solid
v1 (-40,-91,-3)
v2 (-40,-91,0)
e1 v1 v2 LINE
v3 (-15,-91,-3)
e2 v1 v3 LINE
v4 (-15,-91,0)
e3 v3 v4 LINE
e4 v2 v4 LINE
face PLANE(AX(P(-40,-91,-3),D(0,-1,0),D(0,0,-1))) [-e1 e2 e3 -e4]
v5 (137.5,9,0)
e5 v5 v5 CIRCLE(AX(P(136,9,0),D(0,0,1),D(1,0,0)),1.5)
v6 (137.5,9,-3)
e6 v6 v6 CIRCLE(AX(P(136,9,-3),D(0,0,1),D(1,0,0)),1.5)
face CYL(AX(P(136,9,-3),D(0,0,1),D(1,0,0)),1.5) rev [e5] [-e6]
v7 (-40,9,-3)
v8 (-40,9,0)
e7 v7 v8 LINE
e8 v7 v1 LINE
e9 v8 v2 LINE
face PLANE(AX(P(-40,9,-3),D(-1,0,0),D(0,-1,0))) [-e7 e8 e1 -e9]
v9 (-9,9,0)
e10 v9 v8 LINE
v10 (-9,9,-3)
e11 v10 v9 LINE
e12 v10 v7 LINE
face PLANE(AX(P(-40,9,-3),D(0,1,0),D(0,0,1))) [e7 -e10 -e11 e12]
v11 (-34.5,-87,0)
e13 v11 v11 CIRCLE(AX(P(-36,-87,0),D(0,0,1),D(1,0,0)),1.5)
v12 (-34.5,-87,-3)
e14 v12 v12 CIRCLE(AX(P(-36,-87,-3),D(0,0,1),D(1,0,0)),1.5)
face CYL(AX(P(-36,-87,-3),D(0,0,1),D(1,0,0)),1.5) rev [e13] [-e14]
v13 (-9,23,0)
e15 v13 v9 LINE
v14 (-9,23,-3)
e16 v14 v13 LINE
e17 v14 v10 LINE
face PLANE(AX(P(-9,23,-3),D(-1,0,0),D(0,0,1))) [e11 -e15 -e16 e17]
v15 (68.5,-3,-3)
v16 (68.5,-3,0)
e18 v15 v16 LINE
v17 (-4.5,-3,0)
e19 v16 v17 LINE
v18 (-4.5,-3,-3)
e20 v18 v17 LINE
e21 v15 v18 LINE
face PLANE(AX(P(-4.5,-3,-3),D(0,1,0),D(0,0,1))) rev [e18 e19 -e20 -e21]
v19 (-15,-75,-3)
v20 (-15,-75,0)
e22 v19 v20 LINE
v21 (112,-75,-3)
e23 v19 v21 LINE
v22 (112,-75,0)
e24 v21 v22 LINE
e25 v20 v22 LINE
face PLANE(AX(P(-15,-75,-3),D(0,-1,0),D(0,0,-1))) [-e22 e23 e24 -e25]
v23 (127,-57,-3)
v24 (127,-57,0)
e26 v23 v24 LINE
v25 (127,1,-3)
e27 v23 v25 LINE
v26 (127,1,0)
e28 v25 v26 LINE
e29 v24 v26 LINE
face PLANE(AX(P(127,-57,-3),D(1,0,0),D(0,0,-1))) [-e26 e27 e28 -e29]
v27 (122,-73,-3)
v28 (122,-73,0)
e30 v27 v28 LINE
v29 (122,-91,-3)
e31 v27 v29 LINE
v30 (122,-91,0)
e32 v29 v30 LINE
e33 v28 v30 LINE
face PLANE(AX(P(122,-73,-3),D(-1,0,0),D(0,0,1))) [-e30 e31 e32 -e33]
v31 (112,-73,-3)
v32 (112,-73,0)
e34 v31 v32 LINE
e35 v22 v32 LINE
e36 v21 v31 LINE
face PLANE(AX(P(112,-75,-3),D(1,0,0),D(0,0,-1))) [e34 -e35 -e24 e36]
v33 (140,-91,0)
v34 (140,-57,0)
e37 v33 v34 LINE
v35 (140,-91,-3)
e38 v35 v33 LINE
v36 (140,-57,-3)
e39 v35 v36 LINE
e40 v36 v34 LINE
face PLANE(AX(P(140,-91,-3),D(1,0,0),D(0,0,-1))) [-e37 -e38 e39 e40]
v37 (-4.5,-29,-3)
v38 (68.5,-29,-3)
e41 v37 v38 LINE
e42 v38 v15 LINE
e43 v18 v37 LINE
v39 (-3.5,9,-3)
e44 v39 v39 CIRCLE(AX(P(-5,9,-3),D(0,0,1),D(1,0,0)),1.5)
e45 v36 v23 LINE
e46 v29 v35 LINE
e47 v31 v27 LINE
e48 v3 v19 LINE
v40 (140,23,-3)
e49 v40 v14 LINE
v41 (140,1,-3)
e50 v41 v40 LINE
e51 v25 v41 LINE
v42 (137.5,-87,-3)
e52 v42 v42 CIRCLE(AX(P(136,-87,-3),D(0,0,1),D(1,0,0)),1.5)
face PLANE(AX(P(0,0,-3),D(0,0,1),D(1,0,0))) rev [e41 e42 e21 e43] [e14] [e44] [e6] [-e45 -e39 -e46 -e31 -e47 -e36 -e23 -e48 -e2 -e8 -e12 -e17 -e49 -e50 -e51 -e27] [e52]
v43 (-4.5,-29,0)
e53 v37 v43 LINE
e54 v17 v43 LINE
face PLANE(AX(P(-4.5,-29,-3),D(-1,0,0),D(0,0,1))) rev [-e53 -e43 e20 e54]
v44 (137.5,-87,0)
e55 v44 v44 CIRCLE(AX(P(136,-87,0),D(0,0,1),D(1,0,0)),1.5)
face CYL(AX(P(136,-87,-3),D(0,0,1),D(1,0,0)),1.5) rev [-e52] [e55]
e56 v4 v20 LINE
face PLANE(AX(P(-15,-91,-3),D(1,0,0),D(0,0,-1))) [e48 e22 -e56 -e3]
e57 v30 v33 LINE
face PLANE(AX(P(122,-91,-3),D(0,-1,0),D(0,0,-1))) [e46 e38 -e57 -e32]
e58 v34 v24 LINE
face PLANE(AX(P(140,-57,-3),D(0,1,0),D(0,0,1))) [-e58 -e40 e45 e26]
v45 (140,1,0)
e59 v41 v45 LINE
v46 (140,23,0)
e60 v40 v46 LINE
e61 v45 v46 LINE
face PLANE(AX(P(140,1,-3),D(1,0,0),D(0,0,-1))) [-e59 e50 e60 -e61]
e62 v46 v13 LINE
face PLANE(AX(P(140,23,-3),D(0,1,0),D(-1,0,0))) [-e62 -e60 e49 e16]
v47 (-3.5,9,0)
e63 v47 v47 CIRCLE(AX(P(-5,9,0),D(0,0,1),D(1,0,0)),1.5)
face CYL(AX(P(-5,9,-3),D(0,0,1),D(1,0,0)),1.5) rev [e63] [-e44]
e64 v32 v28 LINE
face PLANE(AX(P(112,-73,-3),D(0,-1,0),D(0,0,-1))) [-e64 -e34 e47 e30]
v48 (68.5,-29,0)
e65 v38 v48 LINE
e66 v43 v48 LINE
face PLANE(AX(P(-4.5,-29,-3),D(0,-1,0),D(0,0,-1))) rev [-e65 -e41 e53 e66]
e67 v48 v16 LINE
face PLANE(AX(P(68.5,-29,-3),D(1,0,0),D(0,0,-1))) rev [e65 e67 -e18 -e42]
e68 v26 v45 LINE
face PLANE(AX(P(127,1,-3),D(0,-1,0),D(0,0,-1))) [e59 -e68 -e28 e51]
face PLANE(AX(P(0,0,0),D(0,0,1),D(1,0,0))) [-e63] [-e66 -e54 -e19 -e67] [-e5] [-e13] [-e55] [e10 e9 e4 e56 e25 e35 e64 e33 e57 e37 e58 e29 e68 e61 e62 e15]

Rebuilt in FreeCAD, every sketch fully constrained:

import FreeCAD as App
import Part
import Sketcher
from FreeCAD import Vector

doc = App.newDocument("Part")
body = doc.addObject("PartDesign::Body", "Body")

# Sketch on XY plane
sketch1 = doc.addObject("Sketcher::SketchObject", "Sketch")
body.addObject(sketch1)
sketch1.AttachmentSupport = (doc.XY_Plane, [""])
sketch1.MapMode = "FlatFace"
sketch1.addGeometry([
    Part.LineSegment(Vector(-40, -91, 0), Vector(-15, -91, 0)),  # 0
    Part.LineSegment(Vector(-15, -91, 0), Vector(-15, -75, 0)),  # 1
    Part.LineSegment(Vector(-15, -75, 0), Vector(112, -75, 0)),  # 2
    Part.LineSegment(Vector(112, -75, 0), Vector(112, -73, 0)),  # 3
    Part.LineSegment(Vector(112, -73, 0), Vector(122, -73, 0)),  # 4
    Part.LineSegment(Vector(122, -73, 0), Vector(122, -91, 0)),  # 5
    Part.LineSegment(Vector(122, -91, 0), Vector(140, -91, 0)),  # 6
    Part.LineSegment(Vector(140, -91, 0), Vector(140, -57, 0)),  # 7
    Part.LineSegment(Vector(140, -57, 0), Vector(127, -57, 0)),  # 8
    Part.LineSegment(Vector(127, -57, 0), Vector(127, 1, 0)),  # 9
    Part.LineSegment(Vector(127, 1, 0), Vector(140, 1, 0)),  # 10
    Part.LineSegment(Vector(140, 1, 0), Vector(140, 23, 0)),  # 11
    Part.LineSegment(Vector(140, 23, 0), Vector(-9, 23, 0)),  # 12
    Part.LineSegment(Vector(-9, 23, 0), Vector(-9, 9, 0)),  # 13
    Part.LineSegment(Vector(-9, 9, 0), Vector(-40, 9, 0)),  # 14
    Part.LineSegment(Vector(-40, 9, 0), Vector(-40, -91, 0)),  # 15
    Part.Circle(Vector(-36, -87, 0), Vector(0, 0, 1), 1.5),  # 16
    Part.Circle(Vector(136, -87, 0), Vector(0, 0, 1), 1.5),  # 17
    Part.LineSegment(Vector(68.5, -29, 0), Vector(-4.5, -29, 0)),  # 18
    Part.LineSegment(Vector(-4.5, -29, 0), Vector(-4.5, -3, 0)),  # 19
    Part.LineSegment(Vector(-4.5, -3, 0), Vector(68.5, -3, 0)),  # 20
    Part.LineSegment(Vector(68.5, -3, 0), Vector(68.5, -29, 0)),  # 21
    Part.Circle(Vector(-5, 9, 0), Vector(0, 0, 1), 1.5),  # 22
    Part.Circle(Vector(136, 9, 0), Vector(0, 0, 1), 1.5),  # 23
], False)
sketch1.addConstraint([
    Sketcher.Constraint("Coincident", 0, 2, 1, 1),
    Sketcher.Constraint("Coincident", 1, 2, 2, 1),
    Sketcher.Constraint("Coincident", 2, 2, 3, 1),
    Sketcher.Constraint("Coincident", 3, 2, 4, 1),
    Sketcher.Constraint("Coincident", 4, 2, 5, 1),
    Sketcher.Constraint("Coincident", 5, 2, 6, 1),
    Sketcher.Constraint("Coincident", 6, 2, 7, 1),
    Sketcher.Constraint("Coincident", 7, 2, 8, 1),
    Sketcher.Constraint("Coincident", 8, 2, 9, 1),
    Sketcher.Constraint("Coincident", 9, 2, 10, 1),
    Sketcher.Constraint("Coincident", 10, 2, 11, 1),
    Sketcher.Constraint("Coincident", 11, 2, 12, 1),
    Sketcher.Constraint("Coincident", 12, 2, 13, 1),
    Sketcher.Constraint("Coincident", 13, 2, 14, 1),
    Sketcher.Constraint("Coincident", 14, 2, 15, 1),
    Sketcher.Constraint("Coincident", 15, 2, 0, 1),
    Sketcher.Constraint("Coincident", 18, 2, 19, 1),
    Sketcher.Constraint("Coincident", 19, 2, 20, 1),
    Sketcher.Constraint("Coincident", 20, 2, 21, 1),
    Sketcher.Constraint("Coincident", 21, 2, 18, 1),
    Sketcher.Constraint("Horizontal", 0),
    Sketcher.Constraint("Vertical", 1),
    Sketcher.Constraint("Horizontal", 2),
    Sketcher.Constraint("Vertical", 3),
    Sketcher.Constraint("Horizontal", 4),
    Sketcher.Constraint("Vertical", 5),
    Sketcher.Constraint("Horizontal", 6),
    Sketcher.Constraint("Vertical", 7),
    Sketcher.Constraint("Horizontal", 8),
    Sketcher.Constraint("Vertical", 9),
    Sketcher.Constraint("Horizontal", 10),
    Sketcher.Constraint("Vertical", 11),
    Sketcher.Constraint("Horizontal", 12),
    Sketcher.Constraint("Vertical", 13),
    Sketcher.Constraint("Horizontal", 14),
    Sketcher.Constraint("Vertical", 15),
    Sketcher.Constraint("Horizontal", 18),
    Sketcher.Constraint("Vertical", 19),
    Sketcher.Constraint("Horizontal", 20),
    Sketcher.Constraint("Vertical", 21),
    Sketcher.Constraint("Equal", 16, 17),
    Sketcher.Constraint("Equal", 17, 22),
    Sketcher.Constraint("Equal", 22, 23),
    Sketcher.Constraint("Horizontal", 16, 3, 17, 3),
    Sketcher.Constraint("Horizontal", 22, 3, 23, 3),
    Sketcher.Constraint("Horizontal", 0, 2, 5, 2),
    Sketcher.Constraint("Horizontal", 23, 3, 13, 2),
    Sketcher.Constraint("Vertical", 17, 3, 23, 3),
    Sketcher.Constraint("Vertical", 7, 2, 10, 2),
    Sketcher.Constraint("Equal", 6, 5),
    Sketcher.Constraint("Diameter", 16, 3.0),
    Sketcher.Constraint("DistanceX", 0, 1, 0, 2, 25.0),
    Sketcher.Constraint("DistanceX", 2, 1, 2, 2, 127.0),
    Sketcher.Constraint("DistanceX", 4, 1, 4, 2, 10.0),
    Sketcher.Constraint("DistanceX", 6, 1, 6, 2, 18.0),
    Sketcher.Constraint("DistanceX", 8, 2, 8, 1, 13.0),
    Sketcher.Constraint("DistanceX", 12, 2, 12, 1, 149.0),
    Sketcher.Constraint("DistanceX", 18, 2, 18, 1, 73.0),
    Sketcher.Constraint("DistanceY", 1, 1, 1, 2, 16.0),
    Sketcher.Constraint("DistanceY", 7, 1, 7, 2, 34.0),
    Sketcher.Constraint("DistanceY", 9, 1, 9, 2, 58.0),
    Sketcher.Constraint("DistanceY", 11, 1, 11, 2, 22.0),
    Sketcher.Constraint("DistanceY", 13, 2, 13, 1, 14.0),
    Sketcher.Constraint("DistanceY", 19, 1, 19, 2, 26.0),
    Sketcher.Constraint("DistanceX", 16, 3, -1, 1, 36.0),
    Sketcher.Constraint("DistanceY", 16, 3, -1, 1, 87.0),
    Sketcher.Constraint("DistanceX", -1, 1, 17, 3, 136.0),
    Sketcher.Constraint("DistanceX", 22, 3, -1, 1, 5.0),
    Sketcher.Constraint("DistanceY", -1, 1, 22, 3, 9.0),
    Sketcher.Constraint("DistanceX", 0, 2, -1, 1, 15.0),
    Sketcher.Constraint("DistanceY", 18, 2, -1, 1, 29.0),
    Sketcher.Constraint("DistanceX", 18, 2, -1, 1, 4.5),
])
pad1 = doc.addObject("PartDesign::Pad", "Pad")
body.addObject(pad1)
pad1.Profile = sketch1
pad1.Length = 3
pad1.Reversed = True

doc.recompute()
